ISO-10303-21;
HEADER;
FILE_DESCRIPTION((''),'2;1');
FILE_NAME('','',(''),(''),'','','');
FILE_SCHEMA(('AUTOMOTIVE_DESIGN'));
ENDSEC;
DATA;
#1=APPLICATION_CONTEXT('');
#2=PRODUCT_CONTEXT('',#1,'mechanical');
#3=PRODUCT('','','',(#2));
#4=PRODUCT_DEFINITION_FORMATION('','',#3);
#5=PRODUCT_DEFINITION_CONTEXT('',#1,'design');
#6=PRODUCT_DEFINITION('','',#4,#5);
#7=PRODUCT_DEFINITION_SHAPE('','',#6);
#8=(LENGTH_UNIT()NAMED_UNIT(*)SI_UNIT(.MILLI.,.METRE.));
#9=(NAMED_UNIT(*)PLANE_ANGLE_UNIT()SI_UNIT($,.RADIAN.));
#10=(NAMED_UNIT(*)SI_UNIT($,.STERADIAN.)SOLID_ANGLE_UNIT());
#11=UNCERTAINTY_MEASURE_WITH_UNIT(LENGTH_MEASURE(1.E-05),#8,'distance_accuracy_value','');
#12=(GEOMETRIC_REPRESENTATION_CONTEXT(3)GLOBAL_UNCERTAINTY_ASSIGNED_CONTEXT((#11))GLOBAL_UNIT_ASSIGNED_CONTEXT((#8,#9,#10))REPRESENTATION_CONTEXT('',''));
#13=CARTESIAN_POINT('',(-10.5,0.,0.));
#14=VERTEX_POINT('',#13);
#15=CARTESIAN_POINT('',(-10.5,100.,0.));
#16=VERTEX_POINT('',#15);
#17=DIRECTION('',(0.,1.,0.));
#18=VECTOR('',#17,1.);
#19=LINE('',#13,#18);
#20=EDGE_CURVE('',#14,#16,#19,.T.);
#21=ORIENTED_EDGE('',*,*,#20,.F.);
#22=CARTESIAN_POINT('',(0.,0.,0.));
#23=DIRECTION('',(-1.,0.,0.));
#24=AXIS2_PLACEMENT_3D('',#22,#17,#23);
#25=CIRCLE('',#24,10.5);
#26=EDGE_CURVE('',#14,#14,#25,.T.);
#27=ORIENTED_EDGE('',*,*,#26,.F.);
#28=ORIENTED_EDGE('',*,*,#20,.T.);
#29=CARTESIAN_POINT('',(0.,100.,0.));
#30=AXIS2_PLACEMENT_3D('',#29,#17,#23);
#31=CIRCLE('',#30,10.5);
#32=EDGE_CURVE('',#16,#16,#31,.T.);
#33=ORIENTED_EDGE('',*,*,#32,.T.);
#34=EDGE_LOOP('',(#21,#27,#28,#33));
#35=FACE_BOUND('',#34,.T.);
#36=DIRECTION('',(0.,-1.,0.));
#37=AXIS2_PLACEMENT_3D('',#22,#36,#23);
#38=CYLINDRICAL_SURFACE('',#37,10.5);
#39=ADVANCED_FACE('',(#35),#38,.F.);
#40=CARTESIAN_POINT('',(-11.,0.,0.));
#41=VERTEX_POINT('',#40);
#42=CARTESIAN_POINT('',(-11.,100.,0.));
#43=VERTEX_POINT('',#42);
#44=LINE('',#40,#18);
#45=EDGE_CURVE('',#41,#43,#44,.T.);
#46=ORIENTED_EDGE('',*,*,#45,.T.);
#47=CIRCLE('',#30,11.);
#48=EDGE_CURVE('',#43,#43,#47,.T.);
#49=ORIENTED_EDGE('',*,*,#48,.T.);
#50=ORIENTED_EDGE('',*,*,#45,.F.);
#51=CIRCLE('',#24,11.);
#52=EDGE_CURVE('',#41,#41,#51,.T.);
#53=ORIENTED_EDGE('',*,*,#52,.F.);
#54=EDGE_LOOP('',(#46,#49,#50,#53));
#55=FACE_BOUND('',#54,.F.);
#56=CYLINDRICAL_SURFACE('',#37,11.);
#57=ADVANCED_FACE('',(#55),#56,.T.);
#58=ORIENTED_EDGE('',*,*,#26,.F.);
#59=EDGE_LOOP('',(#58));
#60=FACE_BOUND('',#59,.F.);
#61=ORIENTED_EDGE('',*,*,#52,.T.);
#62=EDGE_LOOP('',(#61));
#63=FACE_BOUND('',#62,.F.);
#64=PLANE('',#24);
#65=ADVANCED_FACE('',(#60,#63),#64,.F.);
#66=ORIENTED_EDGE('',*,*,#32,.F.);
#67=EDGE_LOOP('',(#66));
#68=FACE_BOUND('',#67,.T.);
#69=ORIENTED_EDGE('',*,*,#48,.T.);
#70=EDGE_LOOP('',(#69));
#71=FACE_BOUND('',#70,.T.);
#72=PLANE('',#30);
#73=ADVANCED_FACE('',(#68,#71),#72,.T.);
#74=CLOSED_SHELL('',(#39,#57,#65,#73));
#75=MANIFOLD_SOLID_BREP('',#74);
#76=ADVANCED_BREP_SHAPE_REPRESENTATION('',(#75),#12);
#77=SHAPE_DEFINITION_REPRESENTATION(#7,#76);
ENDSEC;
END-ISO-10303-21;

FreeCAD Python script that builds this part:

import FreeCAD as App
import Part
import Sketcher
from FreeCAD import Vector

doc = App.newDocument("Part")
body = doc.addObject("PartDesign::Body", "Body")

# Sketch on XZ plane
sketch1 = doc.addObject("Sketcher::SketchObject", "Sketch")
body.addObject(sketch1)
sketch1.AttachmentSupport = (doc.XZ_Plane, [""])
sketch1.MapMode = "FlatFace"
sketch1.addGeometry([
    Part.Circle(Vector(0, 0, 0), Vector(0, 0, 1), 11),
    Part.Circle(Vector(0, 0, 0), Vector(0, 0, 1), 10),
], False)
sketch1.addConstraint([
    Sketcher.Constraint("Coincident", 0, 3, -1, 1),
    Sketcher.Constraint("Coincident", 1, 3, -1, 1),
    Sketcher.Constraint("Diameter", 0, 22.0),
    Sketcher.Constraint("Diameter", 1, 21.0),
])
pad1 = doc.addObject("PartDesign::Pad", "Pad")
body.addObject(pad1)
pad1.Profile = sketch1
pad1.Length = 100
pad1.Reversed = True

doc.recompute()
